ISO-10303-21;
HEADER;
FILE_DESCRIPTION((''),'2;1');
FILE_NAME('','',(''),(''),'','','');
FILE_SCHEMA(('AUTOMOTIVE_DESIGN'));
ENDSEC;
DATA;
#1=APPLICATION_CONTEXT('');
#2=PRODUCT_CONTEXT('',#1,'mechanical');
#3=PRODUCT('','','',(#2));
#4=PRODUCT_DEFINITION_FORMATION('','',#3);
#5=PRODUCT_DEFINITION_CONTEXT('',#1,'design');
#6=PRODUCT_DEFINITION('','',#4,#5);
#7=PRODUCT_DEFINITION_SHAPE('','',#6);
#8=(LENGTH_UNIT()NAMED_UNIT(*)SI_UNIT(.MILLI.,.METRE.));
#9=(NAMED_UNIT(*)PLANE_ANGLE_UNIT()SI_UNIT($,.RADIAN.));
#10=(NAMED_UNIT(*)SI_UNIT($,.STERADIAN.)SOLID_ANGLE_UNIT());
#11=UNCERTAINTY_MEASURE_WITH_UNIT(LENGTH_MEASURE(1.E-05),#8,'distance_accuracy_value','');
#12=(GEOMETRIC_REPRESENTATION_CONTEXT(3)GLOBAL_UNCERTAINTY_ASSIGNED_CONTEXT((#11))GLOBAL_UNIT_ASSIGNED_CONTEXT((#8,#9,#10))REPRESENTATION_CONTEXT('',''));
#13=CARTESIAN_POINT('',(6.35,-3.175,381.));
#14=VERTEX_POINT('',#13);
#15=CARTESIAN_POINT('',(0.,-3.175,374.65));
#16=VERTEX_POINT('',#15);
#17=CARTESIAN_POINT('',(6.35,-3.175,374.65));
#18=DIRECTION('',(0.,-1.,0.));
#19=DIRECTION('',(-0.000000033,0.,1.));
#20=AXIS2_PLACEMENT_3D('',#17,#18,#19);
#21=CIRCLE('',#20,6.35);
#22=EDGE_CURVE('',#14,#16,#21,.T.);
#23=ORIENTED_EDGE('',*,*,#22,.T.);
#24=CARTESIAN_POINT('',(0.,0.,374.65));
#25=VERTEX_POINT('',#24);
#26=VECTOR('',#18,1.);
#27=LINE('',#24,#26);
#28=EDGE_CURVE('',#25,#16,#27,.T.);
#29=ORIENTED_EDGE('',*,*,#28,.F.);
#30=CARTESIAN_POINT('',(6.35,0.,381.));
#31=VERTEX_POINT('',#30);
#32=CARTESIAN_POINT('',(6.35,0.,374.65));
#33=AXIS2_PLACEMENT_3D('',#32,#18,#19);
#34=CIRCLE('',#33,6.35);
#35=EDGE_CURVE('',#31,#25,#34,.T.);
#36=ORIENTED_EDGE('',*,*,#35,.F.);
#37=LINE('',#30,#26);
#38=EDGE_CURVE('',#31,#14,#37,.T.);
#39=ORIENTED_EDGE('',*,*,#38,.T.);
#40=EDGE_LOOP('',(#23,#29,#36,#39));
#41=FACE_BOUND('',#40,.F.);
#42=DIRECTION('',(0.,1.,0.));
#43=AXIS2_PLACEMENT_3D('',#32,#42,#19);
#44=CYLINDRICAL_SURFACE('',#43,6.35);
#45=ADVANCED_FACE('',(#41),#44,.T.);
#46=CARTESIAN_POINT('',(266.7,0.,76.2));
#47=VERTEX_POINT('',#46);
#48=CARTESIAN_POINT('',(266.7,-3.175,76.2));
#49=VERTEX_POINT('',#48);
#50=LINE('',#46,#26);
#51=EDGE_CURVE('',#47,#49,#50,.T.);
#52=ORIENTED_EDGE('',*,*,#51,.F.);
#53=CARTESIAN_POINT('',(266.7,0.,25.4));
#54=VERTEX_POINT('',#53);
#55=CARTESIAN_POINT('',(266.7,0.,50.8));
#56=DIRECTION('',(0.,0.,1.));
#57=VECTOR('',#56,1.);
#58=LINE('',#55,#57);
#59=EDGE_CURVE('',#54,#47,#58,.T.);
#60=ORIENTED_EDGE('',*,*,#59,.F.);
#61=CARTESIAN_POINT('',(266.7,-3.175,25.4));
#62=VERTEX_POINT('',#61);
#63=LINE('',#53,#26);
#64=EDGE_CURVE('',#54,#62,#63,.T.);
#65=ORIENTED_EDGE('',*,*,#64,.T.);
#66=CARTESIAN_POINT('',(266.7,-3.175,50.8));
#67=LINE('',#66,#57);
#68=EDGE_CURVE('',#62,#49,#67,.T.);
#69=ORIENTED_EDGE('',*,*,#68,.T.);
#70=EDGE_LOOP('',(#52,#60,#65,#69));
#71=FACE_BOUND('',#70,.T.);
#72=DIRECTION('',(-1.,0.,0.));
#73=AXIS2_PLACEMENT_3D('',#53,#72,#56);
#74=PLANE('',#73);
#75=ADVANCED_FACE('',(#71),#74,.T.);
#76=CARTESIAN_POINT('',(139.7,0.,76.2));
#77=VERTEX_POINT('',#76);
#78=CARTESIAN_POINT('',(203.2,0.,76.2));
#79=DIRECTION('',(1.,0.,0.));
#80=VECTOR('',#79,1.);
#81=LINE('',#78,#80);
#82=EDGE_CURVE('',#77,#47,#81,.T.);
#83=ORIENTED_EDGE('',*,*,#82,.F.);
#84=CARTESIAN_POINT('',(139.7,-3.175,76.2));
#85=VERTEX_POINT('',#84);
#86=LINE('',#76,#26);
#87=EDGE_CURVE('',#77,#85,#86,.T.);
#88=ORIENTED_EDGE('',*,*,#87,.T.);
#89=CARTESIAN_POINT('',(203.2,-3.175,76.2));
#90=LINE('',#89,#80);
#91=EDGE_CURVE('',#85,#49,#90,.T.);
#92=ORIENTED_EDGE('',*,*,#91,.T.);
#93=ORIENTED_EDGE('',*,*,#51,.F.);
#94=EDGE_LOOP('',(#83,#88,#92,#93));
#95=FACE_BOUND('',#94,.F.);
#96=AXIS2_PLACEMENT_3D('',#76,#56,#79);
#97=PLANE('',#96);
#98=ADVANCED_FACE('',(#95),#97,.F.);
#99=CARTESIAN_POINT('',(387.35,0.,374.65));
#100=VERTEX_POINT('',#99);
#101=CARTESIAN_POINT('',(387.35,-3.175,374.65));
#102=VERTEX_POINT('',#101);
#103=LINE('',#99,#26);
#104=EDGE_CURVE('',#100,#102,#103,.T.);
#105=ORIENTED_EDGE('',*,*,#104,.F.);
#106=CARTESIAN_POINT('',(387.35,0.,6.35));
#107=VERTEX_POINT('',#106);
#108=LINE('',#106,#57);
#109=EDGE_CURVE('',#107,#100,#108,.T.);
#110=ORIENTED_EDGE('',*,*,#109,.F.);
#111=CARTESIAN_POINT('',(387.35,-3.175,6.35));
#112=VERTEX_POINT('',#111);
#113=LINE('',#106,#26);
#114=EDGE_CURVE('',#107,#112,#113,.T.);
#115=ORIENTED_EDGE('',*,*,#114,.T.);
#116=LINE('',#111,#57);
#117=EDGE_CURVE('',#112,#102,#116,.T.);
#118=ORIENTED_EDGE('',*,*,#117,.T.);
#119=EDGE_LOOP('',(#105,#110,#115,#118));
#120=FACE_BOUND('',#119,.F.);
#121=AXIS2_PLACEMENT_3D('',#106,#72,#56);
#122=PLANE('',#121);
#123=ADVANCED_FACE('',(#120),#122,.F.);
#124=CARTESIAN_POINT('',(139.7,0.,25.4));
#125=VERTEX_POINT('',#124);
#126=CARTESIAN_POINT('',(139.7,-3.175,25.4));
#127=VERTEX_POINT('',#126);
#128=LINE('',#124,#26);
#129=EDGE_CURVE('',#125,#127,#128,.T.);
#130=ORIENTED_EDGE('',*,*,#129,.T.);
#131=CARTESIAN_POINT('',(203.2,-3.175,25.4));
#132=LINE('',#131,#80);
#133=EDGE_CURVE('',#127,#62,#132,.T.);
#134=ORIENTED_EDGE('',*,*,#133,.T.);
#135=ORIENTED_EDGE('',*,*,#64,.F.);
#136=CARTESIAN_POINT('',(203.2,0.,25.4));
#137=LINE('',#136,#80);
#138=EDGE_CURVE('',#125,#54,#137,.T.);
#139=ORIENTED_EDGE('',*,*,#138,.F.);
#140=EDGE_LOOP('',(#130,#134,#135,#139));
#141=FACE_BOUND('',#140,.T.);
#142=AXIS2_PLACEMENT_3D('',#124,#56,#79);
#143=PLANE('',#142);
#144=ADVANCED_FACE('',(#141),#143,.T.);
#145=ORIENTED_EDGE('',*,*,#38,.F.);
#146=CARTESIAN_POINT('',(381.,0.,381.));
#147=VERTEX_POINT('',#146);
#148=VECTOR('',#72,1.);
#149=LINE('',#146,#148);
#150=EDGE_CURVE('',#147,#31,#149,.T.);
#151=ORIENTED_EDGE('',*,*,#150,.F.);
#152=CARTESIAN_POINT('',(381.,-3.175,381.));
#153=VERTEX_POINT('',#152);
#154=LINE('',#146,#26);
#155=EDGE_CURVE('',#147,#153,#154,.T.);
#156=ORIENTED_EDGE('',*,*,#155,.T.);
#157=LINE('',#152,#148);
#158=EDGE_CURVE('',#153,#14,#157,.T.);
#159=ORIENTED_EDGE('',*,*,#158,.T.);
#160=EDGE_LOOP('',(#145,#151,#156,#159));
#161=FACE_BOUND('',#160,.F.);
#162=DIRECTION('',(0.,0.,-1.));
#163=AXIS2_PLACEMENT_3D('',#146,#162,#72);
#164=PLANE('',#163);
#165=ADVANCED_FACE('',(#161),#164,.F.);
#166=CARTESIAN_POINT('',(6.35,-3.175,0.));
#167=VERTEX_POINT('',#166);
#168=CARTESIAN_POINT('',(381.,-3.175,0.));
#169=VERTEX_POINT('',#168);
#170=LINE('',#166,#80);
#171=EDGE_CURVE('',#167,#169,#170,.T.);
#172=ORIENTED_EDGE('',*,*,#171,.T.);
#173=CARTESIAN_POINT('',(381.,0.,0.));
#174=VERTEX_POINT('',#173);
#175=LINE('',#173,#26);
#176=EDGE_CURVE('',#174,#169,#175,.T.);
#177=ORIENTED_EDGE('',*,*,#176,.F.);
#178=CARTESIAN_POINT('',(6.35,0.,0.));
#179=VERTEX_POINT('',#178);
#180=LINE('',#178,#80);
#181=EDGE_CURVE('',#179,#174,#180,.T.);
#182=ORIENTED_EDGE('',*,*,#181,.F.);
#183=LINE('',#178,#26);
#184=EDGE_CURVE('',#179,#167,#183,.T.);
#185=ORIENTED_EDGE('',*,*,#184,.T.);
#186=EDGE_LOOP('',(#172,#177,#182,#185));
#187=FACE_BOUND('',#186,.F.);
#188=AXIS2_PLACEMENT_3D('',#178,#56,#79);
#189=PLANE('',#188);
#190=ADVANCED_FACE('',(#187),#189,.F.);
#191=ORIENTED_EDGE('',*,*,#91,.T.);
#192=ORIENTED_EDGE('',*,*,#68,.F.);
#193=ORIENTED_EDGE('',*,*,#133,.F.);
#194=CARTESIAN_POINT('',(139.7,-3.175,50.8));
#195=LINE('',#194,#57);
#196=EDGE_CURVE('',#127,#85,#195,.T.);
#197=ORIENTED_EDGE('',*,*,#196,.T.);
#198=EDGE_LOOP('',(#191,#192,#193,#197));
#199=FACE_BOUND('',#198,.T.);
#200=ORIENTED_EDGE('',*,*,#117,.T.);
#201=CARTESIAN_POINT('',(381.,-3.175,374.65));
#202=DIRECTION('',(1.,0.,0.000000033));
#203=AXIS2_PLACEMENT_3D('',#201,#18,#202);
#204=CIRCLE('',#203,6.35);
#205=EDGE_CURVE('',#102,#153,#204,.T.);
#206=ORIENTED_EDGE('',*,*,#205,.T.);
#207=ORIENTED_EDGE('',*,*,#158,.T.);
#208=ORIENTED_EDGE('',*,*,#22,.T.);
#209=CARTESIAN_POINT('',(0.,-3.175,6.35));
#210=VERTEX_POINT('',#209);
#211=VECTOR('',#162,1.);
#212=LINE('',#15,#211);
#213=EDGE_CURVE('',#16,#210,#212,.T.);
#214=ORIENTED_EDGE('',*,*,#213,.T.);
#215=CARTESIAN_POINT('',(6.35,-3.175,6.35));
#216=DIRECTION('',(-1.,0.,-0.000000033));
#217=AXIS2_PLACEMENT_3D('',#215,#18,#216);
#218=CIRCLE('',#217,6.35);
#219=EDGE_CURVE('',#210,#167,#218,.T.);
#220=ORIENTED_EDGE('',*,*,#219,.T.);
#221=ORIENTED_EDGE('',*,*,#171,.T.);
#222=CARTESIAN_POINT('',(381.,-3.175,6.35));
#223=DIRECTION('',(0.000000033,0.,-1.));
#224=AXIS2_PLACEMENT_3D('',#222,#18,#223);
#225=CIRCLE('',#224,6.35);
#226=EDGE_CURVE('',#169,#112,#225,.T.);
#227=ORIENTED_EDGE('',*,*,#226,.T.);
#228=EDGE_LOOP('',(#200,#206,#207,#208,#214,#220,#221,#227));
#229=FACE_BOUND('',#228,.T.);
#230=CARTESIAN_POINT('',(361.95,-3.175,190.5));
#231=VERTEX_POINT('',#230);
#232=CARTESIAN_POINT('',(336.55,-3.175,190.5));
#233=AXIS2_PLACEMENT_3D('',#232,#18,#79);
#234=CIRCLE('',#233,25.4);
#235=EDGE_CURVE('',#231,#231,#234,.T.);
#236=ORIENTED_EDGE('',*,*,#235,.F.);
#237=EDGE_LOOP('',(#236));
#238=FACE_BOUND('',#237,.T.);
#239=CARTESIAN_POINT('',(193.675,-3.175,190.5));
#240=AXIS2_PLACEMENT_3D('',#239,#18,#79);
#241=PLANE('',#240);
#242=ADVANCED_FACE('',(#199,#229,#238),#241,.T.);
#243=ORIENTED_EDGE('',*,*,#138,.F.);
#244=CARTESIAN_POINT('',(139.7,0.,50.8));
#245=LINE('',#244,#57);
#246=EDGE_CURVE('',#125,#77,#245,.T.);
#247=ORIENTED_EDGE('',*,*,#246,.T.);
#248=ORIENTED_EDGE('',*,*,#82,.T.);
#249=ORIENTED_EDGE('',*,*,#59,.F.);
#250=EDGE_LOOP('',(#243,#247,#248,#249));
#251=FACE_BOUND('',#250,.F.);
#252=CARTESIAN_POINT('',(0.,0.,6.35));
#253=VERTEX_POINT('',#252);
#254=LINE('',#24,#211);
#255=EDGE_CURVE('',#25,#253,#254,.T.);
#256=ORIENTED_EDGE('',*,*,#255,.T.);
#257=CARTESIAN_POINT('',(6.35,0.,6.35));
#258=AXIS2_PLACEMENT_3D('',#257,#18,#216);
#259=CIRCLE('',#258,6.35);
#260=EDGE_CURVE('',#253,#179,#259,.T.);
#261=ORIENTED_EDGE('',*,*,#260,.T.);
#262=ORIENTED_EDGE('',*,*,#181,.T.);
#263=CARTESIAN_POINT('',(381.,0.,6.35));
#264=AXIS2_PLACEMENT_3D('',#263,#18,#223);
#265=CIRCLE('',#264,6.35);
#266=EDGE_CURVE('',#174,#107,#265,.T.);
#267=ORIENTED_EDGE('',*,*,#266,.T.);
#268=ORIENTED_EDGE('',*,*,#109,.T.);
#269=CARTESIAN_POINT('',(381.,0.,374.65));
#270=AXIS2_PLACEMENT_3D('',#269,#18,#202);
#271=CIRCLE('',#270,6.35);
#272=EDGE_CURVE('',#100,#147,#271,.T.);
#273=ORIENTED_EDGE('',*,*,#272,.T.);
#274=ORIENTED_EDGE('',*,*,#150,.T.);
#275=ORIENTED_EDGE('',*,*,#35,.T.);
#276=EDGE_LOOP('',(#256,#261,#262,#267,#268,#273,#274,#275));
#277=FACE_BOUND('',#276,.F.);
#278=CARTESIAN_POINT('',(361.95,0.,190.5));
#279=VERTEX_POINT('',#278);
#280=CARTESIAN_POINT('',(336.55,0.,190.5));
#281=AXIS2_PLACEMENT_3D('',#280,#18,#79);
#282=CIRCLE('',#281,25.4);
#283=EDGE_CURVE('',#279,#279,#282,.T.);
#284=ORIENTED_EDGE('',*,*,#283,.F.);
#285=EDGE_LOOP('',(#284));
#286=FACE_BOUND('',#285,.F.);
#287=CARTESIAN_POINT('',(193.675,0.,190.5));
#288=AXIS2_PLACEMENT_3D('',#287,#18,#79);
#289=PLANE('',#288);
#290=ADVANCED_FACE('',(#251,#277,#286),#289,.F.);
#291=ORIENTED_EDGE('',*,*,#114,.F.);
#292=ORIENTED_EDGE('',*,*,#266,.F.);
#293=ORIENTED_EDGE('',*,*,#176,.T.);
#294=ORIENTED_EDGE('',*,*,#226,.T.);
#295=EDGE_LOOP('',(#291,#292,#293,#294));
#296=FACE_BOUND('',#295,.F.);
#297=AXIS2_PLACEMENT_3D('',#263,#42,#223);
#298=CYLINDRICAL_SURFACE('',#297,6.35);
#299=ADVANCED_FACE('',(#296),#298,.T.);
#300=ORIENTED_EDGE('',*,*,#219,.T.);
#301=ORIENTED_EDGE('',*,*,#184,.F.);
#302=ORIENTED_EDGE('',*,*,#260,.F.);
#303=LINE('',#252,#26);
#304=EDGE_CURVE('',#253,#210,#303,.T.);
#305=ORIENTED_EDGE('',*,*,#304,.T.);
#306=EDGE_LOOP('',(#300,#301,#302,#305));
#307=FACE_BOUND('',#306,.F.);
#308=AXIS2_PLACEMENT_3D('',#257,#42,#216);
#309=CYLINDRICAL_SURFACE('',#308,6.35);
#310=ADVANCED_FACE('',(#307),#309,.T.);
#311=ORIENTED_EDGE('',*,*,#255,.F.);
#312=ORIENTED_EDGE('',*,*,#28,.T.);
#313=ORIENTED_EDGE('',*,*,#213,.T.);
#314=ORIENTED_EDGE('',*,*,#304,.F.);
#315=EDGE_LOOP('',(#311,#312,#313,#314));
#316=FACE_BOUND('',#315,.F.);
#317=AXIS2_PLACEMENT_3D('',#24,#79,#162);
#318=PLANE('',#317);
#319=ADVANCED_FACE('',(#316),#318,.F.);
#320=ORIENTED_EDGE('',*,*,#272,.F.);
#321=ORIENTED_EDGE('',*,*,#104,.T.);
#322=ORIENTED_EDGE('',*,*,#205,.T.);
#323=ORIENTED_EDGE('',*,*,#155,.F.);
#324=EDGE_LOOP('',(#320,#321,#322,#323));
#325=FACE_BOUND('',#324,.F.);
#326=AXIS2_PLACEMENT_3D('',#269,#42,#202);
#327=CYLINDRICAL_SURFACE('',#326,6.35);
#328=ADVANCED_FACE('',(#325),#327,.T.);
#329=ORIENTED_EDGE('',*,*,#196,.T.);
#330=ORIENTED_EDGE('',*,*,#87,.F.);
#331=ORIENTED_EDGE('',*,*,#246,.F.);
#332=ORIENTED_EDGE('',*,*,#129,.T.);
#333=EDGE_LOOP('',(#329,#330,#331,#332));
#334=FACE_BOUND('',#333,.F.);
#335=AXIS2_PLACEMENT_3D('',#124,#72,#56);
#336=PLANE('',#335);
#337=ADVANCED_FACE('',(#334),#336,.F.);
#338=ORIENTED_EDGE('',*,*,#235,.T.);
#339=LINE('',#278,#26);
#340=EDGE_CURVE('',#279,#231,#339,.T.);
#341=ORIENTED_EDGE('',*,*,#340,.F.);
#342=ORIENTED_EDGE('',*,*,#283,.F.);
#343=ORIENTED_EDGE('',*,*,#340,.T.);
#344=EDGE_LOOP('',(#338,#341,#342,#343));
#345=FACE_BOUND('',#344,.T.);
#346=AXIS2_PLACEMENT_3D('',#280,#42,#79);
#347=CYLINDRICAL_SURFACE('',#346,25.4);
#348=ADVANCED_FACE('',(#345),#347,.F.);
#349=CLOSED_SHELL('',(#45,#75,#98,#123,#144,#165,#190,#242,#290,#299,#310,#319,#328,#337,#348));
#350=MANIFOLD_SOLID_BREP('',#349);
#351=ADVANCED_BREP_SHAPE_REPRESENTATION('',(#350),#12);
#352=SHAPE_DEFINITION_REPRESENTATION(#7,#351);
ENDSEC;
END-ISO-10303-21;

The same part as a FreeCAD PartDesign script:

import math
import FreeCAD as App
import Part
import Sketcher

V = App.Vector
Q = App.Units.Quantity

doc = App.newDocument("Part")
body = doc.addObject("PartDesign::Body", "Body")

# Sketch on XZ plane
sketch1 = body.newObject("Sketcher::SketchObject", "Sketch")
sketch1.AttachmentSupport = (doc.getObject("XZ_Plane"), [""])
sketch1.MapMode = "FlatFace"
sketch1.addGeometry([
    Part.ArcOfCircle(Part.Circle(V(6, 6, 0), V(0, 0, 1), 6), math.radians(-180), math.radians(-90)),  # 0
    Part.LineSegment(V(6, 0, 0), V(381, 0, 0)),  # 1
    Part.ArcOfCircle(Part.Circle(V(381, 6, 0), V(0, 0, 1), 6), math.radians(-90), math.radians(0)),  # 2
    Part.LineSegment(V(387, 6, 0), V(387, 375, 0)),  # 3
    Part.ArcOfCircle(Part.Circle(V(381, 375, 0), V(0, 0, 1), 6), math.radians(0), math.radians(90)),  # 4
    Part.LineSegment(V(381, 381, 0), V(6, 381, 0)),  # 5
    Part.ArcOfCircle(Part.Circle(V(6, 375, 0), V(0, 0, 1), 6), math.radians(90), math.radians(180)),  # 6
    Part.LineSegment(V(0, 375, 0), V(0, 6, 0)),  # 7
    Part.LineSegment(V(267, 25, 0), V(140, 25, 0)),  # 8
    Part.LineSegment(V(140, 25, 0), V(140, 76, 0)),  # 9
    Part.LineSegment(V(140, 76, 0), V(267, 76, 0)),  # 10
    Part.LineSegment(V(267, 76, 0), V(267, 25, 0)),  # 11
    Part.Circle(V(337, 190, 0), V(0, 0, 1), 25),  # 12
], False)
sketch1.addConstraint([
    Sketcher.Constraint("Tangent", 0, 2, 1, 1),
    Sketcher.Constraint("Tangent", 1, 2, 2, 1),
    Sketcher.Constraint("Tangent", 2, 2, 3, 1),
    Sketcher.Constraint("Tangent", 3, 2, 4, 1),
    Sketcher.Constraint("Tangent", 4, 2, 5, 1),
    Sketcher.Constraint("Tangent", 5, 2, 6, 1),
    Sketcher.Constraint("Tangent", 6, 2, 7, 1),
    Sketcher.Constraint("Tangent", 7, 2, 0, 1),
    Sketcher.Constraint("Coincident", 8, 2, 9, 1),
    Sketcher.Constraint("Coincident", 9, 2, 10, 1),
    Sketcher.Constraint("Coincident", 10, 2, 11, 1),
    Sketcher.Constraint("Coincident", 11, 2, 8, 1),
    Sketcher.Constraint("Horizontal", 1),
    Sketcher.Constraint("Vertical", 3),
    Sketcher.Constraint("Horizontal", 5),
    Sketcher.Constraint("Vertical", 7),
    Sketcher.Constraint("Horizontal", 8),
    Sketcher.Constraint("Vertical", 9),
    Sketcher.Constraint("Horizontal", 10),
    Sketcher.Constraint("Vertical", 11),
    Sketcher.Constraint("Equal", 0, 2),
    Sketcher.Constraint("Equal", 2, 4),
    Sketcher.Constraint("Equal", 4, 6),
    Sketcher.Constraint("PointOnObject", 0, 2, -1),
    Sketcher.Constraint("PointOnObject", 6, 2, -2),
    Sketcher.Constraint("Diameter", 12, Q("2 in")),
    Sketcher.Constraint("DistanceX", 8, 2, 8, 1, Q("5 in")),
    Sketcher.Constraint("DistanceY", 9, 1, 9, 2, Q("2 in")),
    Sketcher.Constraint("Radius", 0, Q("0.25 in")),
    Sketcher.Constraint("DistanceY", 3, 1, 3, 2, Q("14.5 in")),
    Sketcher.Constraint("DistanceX", -1, 1, 2, 3, Q("15 in")),
    Sketcher.Constraint("DistanceY", -1, 1, 8, 2, Q("1 in")),
    Sketcher.Constraint("DistanceX", 0, 3, 12, 3, Q("13 in")),
    Sketcher.Constraint("DistanceY", -1, 1, 12, 3, Q("7.5 in")),
    Sketcher.Constraint("DistanceX", -1, 1, 8, 2, Q("5.5 in")),
])
pad1 = body.newObject("PartDesign::Pad", "Pad")
pad1.Profile = sketch1
pad1.Length = Q("0.125 in")

doc.recompute()
